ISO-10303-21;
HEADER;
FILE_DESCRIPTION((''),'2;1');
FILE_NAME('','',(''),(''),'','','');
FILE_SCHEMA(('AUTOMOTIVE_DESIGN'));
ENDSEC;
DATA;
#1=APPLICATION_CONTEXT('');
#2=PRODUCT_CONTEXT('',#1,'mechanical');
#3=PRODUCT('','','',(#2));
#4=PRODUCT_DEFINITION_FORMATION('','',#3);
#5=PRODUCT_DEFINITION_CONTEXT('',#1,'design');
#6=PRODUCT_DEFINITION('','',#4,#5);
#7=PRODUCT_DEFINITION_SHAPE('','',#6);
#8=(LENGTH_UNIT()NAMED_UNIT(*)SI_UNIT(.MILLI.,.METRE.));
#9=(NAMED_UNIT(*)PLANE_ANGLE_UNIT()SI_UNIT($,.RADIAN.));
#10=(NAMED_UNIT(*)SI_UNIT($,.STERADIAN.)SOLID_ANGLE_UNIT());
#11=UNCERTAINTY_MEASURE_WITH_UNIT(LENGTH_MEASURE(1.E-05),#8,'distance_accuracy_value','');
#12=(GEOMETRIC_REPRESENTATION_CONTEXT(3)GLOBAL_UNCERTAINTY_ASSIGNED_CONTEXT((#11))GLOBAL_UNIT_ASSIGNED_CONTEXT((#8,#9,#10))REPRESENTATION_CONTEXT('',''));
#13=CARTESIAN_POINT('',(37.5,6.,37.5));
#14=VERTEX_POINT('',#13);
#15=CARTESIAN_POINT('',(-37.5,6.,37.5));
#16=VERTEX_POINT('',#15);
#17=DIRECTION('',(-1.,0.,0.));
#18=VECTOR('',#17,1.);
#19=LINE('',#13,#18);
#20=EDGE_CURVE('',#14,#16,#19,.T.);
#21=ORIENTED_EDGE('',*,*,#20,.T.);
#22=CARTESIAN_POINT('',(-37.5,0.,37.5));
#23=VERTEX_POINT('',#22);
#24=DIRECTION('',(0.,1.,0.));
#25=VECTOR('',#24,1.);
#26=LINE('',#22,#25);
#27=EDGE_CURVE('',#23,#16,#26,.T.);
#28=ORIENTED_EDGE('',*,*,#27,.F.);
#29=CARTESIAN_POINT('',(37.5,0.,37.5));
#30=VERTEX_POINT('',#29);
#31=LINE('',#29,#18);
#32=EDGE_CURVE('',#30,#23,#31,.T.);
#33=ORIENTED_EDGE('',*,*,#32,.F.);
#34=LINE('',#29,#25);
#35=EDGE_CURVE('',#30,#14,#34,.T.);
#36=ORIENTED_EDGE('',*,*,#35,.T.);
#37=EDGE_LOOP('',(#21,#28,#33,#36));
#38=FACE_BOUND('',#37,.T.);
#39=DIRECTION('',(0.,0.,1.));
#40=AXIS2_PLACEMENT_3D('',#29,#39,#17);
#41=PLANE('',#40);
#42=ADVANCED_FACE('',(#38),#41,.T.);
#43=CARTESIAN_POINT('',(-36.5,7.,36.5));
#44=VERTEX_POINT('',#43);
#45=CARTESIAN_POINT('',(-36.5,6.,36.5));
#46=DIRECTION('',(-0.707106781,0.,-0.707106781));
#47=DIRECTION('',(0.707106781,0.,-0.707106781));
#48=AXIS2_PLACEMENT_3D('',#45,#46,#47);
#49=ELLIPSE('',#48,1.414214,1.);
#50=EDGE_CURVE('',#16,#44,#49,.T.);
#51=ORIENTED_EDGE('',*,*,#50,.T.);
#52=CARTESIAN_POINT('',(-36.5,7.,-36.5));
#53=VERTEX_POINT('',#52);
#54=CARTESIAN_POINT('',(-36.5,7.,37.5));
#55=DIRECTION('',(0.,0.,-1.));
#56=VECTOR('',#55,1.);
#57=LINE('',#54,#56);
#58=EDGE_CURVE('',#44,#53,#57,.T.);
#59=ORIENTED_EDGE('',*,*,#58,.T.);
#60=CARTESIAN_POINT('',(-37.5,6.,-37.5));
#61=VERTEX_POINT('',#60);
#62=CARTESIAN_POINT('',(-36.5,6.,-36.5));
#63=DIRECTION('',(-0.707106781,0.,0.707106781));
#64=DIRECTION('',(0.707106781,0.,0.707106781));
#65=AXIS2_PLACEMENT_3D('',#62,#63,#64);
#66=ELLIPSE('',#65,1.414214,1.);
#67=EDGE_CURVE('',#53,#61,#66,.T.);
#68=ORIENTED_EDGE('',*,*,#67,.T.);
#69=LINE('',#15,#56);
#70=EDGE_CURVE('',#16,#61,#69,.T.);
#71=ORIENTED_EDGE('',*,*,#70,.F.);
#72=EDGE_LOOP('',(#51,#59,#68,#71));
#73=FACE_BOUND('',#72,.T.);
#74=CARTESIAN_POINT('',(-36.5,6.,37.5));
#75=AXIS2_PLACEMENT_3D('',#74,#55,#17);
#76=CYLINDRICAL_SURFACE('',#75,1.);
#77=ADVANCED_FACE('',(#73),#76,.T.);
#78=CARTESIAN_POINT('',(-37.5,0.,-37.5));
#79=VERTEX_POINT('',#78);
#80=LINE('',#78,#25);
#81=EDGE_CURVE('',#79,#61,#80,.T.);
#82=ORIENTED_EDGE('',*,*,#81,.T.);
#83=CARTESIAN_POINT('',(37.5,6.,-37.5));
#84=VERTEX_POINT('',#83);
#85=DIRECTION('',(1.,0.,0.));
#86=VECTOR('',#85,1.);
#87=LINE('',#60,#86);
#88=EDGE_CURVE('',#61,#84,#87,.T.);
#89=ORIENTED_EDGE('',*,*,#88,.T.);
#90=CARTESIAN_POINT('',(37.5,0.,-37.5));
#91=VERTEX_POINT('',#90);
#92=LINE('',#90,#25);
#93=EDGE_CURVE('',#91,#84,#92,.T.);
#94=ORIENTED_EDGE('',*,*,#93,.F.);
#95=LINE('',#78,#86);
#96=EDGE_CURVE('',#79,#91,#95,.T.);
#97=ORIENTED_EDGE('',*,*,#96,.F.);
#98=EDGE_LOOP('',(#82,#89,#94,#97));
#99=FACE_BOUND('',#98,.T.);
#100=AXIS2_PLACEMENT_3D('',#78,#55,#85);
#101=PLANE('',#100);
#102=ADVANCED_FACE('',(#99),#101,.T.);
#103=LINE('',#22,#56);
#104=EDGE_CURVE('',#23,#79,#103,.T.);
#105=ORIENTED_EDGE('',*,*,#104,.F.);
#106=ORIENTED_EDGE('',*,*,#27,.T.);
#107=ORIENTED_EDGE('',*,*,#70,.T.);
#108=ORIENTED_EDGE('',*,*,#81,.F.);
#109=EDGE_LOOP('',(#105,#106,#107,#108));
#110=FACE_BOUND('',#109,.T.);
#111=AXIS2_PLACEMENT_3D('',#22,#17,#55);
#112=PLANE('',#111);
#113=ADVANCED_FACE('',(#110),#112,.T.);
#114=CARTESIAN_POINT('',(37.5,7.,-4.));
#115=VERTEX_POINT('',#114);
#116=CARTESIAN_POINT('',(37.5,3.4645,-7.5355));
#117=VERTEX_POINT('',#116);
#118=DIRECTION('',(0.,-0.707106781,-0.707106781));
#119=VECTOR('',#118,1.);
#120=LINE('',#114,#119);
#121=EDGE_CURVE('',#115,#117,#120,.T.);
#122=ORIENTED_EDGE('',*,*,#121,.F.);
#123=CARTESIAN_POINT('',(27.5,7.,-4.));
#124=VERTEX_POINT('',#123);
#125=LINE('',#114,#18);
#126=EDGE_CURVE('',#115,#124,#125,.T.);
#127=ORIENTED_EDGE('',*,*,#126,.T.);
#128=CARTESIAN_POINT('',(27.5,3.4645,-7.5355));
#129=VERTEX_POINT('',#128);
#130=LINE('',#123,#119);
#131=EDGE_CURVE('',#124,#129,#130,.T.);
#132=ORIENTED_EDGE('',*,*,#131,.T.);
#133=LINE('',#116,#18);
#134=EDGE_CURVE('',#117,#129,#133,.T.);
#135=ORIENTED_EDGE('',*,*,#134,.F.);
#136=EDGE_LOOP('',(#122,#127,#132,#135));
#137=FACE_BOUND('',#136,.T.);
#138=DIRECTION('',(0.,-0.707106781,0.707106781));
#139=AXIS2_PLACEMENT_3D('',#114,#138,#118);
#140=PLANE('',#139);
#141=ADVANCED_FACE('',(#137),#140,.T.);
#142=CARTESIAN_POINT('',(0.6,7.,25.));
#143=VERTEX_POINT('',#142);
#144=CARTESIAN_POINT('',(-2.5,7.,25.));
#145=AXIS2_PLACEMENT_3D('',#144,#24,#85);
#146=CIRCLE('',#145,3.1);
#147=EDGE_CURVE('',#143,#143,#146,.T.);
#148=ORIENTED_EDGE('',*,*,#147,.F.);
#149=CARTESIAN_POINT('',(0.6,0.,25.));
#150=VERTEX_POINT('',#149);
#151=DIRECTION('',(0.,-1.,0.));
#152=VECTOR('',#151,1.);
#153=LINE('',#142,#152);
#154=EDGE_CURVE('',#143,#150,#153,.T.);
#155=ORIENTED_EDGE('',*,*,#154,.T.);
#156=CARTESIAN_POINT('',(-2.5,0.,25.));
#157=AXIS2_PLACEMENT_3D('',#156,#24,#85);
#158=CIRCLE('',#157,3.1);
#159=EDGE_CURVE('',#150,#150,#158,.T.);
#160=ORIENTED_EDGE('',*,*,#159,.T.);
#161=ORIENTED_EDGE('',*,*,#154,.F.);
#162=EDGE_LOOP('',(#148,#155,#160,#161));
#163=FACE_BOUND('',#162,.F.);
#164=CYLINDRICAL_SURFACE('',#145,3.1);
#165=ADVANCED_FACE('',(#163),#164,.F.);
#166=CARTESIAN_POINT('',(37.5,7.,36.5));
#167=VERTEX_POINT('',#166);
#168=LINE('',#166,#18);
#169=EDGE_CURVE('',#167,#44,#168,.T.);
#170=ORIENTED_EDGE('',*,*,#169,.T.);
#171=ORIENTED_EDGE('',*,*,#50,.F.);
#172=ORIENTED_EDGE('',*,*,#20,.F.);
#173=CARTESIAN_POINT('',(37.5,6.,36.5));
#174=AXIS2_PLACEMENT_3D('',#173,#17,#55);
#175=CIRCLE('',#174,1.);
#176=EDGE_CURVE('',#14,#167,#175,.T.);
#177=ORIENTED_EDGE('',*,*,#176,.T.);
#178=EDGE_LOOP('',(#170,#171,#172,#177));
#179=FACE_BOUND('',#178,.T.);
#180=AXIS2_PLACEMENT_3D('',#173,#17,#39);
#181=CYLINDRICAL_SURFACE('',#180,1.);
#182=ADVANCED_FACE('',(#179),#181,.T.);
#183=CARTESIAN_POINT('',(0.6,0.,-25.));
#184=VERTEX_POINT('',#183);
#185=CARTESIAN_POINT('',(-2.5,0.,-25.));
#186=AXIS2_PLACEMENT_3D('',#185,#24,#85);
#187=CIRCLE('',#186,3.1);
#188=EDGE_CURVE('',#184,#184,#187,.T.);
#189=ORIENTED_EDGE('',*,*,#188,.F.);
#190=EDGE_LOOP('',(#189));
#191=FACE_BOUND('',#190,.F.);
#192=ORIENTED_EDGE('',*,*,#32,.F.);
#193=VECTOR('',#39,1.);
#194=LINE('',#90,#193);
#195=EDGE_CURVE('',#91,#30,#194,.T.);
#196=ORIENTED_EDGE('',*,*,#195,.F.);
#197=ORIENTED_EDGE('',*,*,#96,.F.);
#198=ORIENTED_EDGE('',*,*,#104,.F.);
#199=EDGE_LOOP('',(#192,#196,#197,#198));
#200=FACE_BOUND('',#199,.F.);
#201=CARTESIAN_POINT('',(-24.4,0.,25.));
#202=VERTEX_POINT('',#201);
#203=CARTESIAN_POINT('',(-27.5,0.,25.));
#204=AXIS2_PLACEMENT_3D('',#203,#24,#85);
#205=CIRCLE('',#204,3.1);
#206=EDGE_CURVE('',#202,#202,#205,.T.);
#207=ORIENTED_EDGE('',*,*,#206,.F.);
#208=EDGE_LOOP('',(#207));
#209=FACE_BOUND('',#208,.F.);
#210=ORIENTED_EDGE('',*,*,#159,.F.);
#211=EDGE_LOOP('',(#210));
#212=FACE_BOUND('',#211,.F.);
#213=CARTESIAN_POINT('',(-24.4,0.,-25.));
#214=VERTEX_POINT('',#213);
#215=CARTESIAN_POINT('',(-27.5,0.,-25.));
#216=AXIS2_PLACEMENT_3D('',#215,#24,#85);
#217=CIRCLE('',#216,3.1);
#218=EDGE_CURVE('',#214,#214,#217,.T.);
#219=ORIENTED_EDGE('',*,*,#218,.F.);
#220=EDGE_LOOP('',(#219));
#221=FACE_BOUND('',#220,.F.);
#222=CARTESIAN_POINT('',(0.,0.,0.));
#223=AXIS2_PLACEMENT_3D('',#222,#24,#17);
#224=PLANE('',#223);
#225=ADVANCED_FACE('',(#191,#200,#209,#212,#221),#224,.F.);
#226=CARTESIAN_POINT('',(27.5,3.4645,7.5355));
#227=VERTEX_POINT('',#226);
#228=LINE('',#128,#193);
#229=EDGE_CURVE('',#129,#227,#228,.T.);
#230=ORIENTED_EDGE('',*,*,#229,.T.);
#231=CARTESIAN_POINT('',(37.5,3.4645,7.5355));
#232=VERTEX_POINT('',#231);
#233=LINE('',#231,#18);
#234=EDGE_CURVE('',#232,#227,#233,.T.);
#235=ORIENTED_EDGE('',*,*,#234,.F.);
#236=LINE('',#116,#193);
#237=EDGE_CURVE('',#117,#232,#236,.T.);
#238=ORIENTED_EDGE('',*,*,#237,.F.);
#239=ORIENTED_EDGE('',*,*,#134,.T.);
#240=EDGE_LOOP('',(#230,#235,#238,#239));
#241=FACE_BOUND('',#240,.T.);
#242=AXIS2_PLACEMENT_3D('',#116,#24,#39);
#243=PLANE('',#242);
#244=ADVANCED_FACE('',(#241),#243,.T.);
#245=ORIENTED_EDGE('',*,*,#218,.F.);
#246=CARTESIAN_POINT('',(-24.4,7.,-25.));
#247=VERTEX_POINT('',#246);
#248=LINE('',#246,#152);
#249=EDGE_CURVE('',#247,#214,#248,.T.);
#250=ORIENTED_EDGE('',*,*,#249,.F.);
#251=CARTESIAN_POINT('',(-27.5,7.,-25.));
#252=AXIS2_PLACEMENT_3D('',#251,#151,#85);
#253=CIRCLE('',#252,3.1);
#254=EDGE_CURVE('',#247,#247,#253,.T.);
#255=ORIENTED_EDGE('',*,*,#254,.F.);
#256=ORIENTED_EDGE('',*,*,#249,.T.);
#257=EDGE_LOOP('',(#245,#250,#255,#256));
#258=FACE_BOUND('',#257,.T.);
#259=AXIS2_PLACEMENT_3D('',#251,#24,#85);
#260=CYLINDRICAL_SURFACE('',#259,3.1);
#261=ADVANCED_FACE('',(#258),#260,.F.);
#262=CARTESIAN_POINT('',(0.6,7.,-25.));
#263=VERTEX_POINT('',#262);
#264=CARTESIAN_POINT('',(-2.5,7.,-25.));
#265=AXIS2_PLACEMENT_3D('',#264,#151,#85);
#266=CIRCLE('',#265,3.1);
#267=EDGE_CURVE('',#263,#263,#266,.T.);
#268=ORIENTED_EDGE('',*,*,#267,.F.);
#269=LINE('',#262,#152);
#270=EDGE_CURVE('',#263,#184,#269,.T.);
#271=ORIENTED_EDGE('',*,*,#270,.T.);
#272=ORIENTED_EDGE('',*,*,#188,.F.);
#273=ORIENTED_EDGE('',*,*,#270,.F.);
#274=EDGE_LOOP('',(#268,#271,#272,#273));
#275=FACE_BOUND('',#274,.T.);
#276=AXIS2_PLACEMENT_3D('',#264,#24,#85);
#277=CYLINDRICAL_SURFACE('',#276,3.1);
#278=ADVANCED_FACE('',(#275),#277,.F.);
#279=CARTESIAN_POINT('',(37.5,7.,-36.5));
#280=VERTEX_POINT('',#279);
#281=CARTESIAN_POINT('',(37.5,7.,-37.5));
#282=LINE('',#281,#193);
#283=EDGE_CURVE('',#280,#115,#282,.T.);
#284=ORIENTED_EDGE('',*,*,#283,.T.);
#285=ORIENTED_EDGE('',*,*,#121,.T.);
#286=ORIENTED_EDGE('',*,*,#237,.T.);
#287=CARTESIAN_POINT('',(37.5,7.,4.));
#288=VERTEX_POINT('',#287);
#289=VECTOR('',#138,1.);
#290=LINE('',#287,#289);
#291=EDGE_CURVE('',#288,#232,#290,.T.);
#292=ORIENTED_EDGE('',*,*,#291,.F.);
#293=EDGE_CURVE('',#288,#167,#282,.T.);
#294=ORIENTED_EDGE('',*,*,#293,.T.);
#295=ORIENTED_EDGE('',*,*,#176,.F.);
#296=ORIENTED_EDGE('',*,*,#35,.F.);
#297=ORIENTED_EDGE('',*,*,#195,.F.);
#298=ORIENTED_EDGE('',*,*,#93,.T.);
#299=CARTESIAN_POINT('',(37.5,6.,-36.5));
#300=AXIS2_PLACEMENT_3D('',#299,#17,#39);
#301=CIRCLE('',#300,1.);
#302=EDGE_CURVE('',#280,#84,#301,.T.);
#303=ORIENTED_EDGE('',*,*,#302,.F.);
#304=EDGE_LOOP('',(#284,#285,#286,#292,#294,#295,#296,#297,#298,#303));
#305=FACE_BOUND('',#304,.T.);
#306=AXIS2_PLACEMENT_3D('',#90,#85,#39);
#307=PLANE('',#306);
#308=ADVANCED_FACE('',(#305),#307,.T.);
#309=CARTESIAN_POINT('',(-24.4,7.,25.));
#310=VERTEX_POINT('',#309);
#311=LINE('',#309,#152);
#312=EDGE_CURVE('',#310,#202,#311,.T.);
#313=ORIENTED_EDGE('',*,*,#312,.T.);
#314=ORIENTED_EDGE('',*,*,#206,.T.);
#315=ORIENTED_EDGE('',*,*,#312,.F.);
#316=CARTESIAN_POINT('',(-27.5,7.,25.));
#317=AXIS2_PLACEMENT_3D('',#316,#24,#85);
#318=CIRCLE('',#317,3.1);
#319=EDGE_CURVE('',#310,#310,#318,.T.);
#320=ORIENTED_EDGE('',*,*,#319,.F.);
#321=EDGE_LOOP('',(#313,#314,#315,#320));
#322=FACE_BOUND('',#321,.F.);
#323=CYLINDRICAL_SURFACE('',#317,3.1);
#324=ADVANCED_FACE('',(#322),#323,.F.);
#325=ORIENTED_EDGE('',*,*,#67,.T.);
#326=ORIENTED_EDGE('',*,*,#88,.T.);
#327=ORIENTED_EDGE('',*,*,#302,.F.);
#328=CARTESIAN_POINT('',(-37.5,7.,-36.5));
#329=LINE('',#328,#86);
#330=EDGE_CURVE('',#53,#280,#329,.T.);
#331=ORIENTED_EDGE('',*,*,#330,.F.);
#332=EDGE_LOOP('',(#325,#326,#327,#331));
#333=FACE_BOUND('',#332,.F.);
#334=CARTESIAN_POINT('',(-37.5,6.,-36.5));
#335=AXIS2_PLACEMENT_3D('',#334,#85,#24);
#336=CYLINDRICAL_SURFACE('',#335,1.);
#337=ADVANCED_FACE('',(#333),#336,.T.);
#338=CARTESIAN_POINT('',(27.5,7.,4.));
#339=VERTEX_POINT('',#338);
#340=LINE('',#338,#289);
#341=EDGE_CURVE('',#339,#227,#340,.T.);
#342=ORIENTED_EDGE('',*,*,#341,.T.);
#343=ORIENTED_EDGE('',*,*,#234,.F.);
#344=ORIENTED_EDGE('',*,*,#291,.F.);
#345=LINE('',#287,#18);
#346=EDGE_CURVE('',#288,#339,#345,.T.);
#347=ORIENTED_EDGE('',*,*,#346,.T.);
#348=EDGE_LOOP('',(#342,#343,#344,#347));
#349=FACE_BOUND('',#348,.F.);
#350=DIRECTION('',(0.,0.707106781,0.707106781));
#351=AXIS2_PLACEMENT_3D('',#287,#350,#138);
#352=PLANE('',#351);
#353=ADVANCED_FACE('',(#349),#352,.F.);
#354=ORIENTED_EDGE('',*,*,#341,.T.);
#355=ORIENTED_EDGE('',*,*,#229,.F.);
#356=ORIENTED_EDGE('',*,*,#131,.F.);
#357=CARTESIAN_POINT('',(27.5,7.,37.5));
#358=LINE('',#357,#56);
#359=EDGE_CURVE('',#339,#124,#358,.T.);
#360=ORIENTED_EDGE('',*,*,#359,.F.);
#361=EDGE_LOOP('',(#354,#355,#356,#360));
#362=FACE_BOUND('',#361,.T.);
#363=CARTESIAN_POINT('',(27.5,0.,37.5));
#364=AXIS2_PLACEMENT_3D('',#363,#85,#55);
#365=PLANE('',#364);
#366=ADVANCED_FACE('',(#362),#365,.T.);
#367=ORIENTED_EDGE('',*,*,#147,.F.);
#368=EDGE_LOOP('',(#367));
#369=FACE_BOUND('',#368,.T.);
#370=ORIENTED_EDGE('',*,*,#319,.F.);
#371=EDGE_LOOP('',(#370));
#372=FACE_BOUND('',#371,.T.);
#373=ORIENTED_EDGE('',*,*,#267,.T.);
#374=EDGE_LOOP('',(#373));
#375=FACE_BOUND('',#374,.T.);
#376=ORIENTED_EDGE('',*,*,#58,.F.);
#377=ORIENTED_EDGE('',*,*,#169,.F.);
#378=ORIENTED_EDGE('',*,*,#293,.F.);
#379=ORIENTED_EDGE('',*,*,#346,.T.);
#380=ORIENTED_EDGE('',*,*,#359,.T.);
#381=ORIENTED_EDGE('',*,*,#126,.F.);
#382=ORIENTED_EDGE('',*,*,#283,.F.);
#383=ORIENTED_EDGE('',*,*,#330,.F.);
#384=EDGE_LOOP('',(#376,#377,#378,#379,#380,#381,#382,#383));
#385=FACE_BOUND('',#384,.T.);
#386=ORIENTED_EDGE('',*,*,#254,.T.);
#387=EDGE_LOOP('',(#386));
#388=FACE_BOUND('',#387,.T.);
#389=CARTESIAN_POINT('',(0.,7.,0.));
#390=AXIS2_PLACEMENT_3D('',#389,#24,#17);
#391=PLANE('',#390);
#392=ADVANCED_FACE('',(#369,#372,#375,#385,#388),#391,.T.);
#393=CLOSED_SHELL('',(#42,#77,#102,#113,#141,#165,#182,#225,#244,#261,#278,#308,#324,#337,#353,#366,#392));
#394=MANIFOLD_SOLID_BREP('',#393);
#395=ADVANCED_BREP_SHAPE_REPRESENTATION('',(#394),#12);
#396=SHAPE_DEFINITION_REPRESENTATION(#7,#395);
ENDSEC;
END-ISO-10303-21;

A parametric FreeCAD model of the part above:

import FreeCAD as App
import Part
import Sketcher


def edges_at(feature, points):
    """Names of the edges that pass closest to the given points."""
    edges = feature.Shape.Edges
    near = lambda p: min(range(len(edges)), key=lambda i: edges[i].distToShape(Part.Vertex(*p))[0])
    return sorted({f"Edge{near(p) + 1}" for p in points})


def add_polygon(sketch, points):
    """Adds a closed chain of lines whose ends are joined by coincident constraints."""
    first, n = sketch.GeometryCount, len(points)
    for a, b in zip(points, points[1:] + points[:1]):
        sketch.addGeometry(Part.LineSegment(App.Vector(*a, 0), App.Vector(*b, 0)), False)
    for i in range(n):
        sketch.addConstraint(Sketcher.Constraint("Coincident", first + i, 2, first + (i + 1) % n, 1))

doc = App.newDocument("Part")
body = doc.addObject("PartDesign::Body", "Body")

# Sketch on XZ plane
sketch1 = doc.addObject("Sketcher::SketchObject", "Sketch")
body.addObject(sketch1)
sketch1.AttachmentSupport = (doc.XZ_Plane, [""])
sketch1.MapMode = "FlatFace"
add_polygon(sketch1, [(-38, 38), (38, 38), (38, -38), (-38, -38)])  # lines 0-3
sketch1.addConstraint([
    Sketcher.Constraint("Horizontal", 0),
    Sketcher.Constraint("Vertical", 1),
    Sketcher.Constraint("Horizontal", 2),
    Sketcher.Constraint("Vertical", 3),
    Sketcher.Constraint("Symmetric", 0, 2, 2, 2, -1, 1),
    Sketcher.Constraint("Equal", 2, 1),
    Sketcher.Constraint("DistanceX", 0, 1, 0, 2, 75.0),
])
pad1 = doc.addObject("PartDesign::Pad", "Pad")
body.addObject(pad1)
pad1.Profile = sketch1
pad1.Length = 7
pad1.Reversed = True

# Sketch on XZ plane
sketch2 = doc.addObject("Sketcher::SketchObject", "Sketch001")
body.addObject(sketch2)
sketch2.AttachmentSupport = (doc.XZ_Plane, [""])
sketch2.MapMode = "FlatFace"
sketch2.AttachmentOffset = App.Placement(App.Vector(0, 0, -7), App.Rotation())
sketch2.addGeometry([
    Part.Circle(App.Vector(-27.5, 25, 0), App.Vector(0, 0, 1), 3.1),
    Part.Circle(App.Vector(-2.5, 25, 0), App.Vector(0, 0, 1), 3.1),
], False)
sketch2.addConstraint([
    Sketcher.Constraint("Equal", 0, 1),
    Sketcher.Constraint("Horizontal", 0, 3, 1, 3),
    Sketcher.Constraint("Diameter", 0, 6.2),
    Sketcher.Constraint("DistanceY", -1, 1, 0, 3, 25.0),
    Sketcher.Constraint("DistanceX", 0, 3, 1, 3, 25.0),
    Sketcher.Constraint("DistanceX", 0, 3, -1, 1, 27.5),
])
pocket1 = doc.addObject("PartDesign::Pocket", "Pocket")
body.addObject(pocket1)
pocket1.Profile = sketch2
pocket1.Type = "ThroughAll"
pocket1.Reversed = True
doc.recompute()

mirrored = doc.addObject("PartDesign::Mirrored", "Mirrored")
body.addObject(mirrored)
mirrored.Originals = [pocket1]
mirrored.MirrorPlane = (doc.XY_Plane, [""])
body.Tip = mirrored

# Sketch on YZ plane
sketch3 = doc.addObject("Sketcher::SketchObject", "Sketch002")
body.addObject(sketch3)
sketch3.AttachmentSupport = (doc.YZ_Plane, [""])
sketch3.MapMode = "FlatFace"
sketch3.AttachmentOffset = App.Placement(App.Vector(0, 0, 37.5), App.Rotation())
add_polygon(sketch3, [(7, -4), (7, 4), (3.5, 7.5), (3.5, -7.5)])  # lines 0-3
sketch3.addConstraint([
    Sketcher.Constraint("Vertical", 0),
    Sketcher.Constraint("Vertical", 2),
    Sketcher.Constraint("Perpendicular", 1, 3),
    Sketcher.Constraint("Equal", 1, 3),
    Sketcher.Constraint("DistanceY", 0, 1, 0, 2, 8.0),
    Sketcher.Constraint("Distance", 1, 5.0),
    Sketcher.Constraint("DistanceX", -1, 1, 0, 2, 7.0),
    Sketcher.Constraint("DistanceY", -1, 1, 0, 2, 4.0),
])
pocket2 = doc.addObject("PartDesign::Pocket", "Pocket001")
body.addObject(pocket2)
pocket2.Profile = sketch3
pocket2.Length = 10
doc.recompute()

fillet = doc.addObject("PartDesign::Fillet", "Fillet")
body.addObject(fillet)
fillet.Base = (pocket2, edges_at(pocket2, [(0, 7, -37.5), (-37.5, 7, 0), (0, 7, 37.5)]))
fillet.Radius = 1

doc.recompute()
